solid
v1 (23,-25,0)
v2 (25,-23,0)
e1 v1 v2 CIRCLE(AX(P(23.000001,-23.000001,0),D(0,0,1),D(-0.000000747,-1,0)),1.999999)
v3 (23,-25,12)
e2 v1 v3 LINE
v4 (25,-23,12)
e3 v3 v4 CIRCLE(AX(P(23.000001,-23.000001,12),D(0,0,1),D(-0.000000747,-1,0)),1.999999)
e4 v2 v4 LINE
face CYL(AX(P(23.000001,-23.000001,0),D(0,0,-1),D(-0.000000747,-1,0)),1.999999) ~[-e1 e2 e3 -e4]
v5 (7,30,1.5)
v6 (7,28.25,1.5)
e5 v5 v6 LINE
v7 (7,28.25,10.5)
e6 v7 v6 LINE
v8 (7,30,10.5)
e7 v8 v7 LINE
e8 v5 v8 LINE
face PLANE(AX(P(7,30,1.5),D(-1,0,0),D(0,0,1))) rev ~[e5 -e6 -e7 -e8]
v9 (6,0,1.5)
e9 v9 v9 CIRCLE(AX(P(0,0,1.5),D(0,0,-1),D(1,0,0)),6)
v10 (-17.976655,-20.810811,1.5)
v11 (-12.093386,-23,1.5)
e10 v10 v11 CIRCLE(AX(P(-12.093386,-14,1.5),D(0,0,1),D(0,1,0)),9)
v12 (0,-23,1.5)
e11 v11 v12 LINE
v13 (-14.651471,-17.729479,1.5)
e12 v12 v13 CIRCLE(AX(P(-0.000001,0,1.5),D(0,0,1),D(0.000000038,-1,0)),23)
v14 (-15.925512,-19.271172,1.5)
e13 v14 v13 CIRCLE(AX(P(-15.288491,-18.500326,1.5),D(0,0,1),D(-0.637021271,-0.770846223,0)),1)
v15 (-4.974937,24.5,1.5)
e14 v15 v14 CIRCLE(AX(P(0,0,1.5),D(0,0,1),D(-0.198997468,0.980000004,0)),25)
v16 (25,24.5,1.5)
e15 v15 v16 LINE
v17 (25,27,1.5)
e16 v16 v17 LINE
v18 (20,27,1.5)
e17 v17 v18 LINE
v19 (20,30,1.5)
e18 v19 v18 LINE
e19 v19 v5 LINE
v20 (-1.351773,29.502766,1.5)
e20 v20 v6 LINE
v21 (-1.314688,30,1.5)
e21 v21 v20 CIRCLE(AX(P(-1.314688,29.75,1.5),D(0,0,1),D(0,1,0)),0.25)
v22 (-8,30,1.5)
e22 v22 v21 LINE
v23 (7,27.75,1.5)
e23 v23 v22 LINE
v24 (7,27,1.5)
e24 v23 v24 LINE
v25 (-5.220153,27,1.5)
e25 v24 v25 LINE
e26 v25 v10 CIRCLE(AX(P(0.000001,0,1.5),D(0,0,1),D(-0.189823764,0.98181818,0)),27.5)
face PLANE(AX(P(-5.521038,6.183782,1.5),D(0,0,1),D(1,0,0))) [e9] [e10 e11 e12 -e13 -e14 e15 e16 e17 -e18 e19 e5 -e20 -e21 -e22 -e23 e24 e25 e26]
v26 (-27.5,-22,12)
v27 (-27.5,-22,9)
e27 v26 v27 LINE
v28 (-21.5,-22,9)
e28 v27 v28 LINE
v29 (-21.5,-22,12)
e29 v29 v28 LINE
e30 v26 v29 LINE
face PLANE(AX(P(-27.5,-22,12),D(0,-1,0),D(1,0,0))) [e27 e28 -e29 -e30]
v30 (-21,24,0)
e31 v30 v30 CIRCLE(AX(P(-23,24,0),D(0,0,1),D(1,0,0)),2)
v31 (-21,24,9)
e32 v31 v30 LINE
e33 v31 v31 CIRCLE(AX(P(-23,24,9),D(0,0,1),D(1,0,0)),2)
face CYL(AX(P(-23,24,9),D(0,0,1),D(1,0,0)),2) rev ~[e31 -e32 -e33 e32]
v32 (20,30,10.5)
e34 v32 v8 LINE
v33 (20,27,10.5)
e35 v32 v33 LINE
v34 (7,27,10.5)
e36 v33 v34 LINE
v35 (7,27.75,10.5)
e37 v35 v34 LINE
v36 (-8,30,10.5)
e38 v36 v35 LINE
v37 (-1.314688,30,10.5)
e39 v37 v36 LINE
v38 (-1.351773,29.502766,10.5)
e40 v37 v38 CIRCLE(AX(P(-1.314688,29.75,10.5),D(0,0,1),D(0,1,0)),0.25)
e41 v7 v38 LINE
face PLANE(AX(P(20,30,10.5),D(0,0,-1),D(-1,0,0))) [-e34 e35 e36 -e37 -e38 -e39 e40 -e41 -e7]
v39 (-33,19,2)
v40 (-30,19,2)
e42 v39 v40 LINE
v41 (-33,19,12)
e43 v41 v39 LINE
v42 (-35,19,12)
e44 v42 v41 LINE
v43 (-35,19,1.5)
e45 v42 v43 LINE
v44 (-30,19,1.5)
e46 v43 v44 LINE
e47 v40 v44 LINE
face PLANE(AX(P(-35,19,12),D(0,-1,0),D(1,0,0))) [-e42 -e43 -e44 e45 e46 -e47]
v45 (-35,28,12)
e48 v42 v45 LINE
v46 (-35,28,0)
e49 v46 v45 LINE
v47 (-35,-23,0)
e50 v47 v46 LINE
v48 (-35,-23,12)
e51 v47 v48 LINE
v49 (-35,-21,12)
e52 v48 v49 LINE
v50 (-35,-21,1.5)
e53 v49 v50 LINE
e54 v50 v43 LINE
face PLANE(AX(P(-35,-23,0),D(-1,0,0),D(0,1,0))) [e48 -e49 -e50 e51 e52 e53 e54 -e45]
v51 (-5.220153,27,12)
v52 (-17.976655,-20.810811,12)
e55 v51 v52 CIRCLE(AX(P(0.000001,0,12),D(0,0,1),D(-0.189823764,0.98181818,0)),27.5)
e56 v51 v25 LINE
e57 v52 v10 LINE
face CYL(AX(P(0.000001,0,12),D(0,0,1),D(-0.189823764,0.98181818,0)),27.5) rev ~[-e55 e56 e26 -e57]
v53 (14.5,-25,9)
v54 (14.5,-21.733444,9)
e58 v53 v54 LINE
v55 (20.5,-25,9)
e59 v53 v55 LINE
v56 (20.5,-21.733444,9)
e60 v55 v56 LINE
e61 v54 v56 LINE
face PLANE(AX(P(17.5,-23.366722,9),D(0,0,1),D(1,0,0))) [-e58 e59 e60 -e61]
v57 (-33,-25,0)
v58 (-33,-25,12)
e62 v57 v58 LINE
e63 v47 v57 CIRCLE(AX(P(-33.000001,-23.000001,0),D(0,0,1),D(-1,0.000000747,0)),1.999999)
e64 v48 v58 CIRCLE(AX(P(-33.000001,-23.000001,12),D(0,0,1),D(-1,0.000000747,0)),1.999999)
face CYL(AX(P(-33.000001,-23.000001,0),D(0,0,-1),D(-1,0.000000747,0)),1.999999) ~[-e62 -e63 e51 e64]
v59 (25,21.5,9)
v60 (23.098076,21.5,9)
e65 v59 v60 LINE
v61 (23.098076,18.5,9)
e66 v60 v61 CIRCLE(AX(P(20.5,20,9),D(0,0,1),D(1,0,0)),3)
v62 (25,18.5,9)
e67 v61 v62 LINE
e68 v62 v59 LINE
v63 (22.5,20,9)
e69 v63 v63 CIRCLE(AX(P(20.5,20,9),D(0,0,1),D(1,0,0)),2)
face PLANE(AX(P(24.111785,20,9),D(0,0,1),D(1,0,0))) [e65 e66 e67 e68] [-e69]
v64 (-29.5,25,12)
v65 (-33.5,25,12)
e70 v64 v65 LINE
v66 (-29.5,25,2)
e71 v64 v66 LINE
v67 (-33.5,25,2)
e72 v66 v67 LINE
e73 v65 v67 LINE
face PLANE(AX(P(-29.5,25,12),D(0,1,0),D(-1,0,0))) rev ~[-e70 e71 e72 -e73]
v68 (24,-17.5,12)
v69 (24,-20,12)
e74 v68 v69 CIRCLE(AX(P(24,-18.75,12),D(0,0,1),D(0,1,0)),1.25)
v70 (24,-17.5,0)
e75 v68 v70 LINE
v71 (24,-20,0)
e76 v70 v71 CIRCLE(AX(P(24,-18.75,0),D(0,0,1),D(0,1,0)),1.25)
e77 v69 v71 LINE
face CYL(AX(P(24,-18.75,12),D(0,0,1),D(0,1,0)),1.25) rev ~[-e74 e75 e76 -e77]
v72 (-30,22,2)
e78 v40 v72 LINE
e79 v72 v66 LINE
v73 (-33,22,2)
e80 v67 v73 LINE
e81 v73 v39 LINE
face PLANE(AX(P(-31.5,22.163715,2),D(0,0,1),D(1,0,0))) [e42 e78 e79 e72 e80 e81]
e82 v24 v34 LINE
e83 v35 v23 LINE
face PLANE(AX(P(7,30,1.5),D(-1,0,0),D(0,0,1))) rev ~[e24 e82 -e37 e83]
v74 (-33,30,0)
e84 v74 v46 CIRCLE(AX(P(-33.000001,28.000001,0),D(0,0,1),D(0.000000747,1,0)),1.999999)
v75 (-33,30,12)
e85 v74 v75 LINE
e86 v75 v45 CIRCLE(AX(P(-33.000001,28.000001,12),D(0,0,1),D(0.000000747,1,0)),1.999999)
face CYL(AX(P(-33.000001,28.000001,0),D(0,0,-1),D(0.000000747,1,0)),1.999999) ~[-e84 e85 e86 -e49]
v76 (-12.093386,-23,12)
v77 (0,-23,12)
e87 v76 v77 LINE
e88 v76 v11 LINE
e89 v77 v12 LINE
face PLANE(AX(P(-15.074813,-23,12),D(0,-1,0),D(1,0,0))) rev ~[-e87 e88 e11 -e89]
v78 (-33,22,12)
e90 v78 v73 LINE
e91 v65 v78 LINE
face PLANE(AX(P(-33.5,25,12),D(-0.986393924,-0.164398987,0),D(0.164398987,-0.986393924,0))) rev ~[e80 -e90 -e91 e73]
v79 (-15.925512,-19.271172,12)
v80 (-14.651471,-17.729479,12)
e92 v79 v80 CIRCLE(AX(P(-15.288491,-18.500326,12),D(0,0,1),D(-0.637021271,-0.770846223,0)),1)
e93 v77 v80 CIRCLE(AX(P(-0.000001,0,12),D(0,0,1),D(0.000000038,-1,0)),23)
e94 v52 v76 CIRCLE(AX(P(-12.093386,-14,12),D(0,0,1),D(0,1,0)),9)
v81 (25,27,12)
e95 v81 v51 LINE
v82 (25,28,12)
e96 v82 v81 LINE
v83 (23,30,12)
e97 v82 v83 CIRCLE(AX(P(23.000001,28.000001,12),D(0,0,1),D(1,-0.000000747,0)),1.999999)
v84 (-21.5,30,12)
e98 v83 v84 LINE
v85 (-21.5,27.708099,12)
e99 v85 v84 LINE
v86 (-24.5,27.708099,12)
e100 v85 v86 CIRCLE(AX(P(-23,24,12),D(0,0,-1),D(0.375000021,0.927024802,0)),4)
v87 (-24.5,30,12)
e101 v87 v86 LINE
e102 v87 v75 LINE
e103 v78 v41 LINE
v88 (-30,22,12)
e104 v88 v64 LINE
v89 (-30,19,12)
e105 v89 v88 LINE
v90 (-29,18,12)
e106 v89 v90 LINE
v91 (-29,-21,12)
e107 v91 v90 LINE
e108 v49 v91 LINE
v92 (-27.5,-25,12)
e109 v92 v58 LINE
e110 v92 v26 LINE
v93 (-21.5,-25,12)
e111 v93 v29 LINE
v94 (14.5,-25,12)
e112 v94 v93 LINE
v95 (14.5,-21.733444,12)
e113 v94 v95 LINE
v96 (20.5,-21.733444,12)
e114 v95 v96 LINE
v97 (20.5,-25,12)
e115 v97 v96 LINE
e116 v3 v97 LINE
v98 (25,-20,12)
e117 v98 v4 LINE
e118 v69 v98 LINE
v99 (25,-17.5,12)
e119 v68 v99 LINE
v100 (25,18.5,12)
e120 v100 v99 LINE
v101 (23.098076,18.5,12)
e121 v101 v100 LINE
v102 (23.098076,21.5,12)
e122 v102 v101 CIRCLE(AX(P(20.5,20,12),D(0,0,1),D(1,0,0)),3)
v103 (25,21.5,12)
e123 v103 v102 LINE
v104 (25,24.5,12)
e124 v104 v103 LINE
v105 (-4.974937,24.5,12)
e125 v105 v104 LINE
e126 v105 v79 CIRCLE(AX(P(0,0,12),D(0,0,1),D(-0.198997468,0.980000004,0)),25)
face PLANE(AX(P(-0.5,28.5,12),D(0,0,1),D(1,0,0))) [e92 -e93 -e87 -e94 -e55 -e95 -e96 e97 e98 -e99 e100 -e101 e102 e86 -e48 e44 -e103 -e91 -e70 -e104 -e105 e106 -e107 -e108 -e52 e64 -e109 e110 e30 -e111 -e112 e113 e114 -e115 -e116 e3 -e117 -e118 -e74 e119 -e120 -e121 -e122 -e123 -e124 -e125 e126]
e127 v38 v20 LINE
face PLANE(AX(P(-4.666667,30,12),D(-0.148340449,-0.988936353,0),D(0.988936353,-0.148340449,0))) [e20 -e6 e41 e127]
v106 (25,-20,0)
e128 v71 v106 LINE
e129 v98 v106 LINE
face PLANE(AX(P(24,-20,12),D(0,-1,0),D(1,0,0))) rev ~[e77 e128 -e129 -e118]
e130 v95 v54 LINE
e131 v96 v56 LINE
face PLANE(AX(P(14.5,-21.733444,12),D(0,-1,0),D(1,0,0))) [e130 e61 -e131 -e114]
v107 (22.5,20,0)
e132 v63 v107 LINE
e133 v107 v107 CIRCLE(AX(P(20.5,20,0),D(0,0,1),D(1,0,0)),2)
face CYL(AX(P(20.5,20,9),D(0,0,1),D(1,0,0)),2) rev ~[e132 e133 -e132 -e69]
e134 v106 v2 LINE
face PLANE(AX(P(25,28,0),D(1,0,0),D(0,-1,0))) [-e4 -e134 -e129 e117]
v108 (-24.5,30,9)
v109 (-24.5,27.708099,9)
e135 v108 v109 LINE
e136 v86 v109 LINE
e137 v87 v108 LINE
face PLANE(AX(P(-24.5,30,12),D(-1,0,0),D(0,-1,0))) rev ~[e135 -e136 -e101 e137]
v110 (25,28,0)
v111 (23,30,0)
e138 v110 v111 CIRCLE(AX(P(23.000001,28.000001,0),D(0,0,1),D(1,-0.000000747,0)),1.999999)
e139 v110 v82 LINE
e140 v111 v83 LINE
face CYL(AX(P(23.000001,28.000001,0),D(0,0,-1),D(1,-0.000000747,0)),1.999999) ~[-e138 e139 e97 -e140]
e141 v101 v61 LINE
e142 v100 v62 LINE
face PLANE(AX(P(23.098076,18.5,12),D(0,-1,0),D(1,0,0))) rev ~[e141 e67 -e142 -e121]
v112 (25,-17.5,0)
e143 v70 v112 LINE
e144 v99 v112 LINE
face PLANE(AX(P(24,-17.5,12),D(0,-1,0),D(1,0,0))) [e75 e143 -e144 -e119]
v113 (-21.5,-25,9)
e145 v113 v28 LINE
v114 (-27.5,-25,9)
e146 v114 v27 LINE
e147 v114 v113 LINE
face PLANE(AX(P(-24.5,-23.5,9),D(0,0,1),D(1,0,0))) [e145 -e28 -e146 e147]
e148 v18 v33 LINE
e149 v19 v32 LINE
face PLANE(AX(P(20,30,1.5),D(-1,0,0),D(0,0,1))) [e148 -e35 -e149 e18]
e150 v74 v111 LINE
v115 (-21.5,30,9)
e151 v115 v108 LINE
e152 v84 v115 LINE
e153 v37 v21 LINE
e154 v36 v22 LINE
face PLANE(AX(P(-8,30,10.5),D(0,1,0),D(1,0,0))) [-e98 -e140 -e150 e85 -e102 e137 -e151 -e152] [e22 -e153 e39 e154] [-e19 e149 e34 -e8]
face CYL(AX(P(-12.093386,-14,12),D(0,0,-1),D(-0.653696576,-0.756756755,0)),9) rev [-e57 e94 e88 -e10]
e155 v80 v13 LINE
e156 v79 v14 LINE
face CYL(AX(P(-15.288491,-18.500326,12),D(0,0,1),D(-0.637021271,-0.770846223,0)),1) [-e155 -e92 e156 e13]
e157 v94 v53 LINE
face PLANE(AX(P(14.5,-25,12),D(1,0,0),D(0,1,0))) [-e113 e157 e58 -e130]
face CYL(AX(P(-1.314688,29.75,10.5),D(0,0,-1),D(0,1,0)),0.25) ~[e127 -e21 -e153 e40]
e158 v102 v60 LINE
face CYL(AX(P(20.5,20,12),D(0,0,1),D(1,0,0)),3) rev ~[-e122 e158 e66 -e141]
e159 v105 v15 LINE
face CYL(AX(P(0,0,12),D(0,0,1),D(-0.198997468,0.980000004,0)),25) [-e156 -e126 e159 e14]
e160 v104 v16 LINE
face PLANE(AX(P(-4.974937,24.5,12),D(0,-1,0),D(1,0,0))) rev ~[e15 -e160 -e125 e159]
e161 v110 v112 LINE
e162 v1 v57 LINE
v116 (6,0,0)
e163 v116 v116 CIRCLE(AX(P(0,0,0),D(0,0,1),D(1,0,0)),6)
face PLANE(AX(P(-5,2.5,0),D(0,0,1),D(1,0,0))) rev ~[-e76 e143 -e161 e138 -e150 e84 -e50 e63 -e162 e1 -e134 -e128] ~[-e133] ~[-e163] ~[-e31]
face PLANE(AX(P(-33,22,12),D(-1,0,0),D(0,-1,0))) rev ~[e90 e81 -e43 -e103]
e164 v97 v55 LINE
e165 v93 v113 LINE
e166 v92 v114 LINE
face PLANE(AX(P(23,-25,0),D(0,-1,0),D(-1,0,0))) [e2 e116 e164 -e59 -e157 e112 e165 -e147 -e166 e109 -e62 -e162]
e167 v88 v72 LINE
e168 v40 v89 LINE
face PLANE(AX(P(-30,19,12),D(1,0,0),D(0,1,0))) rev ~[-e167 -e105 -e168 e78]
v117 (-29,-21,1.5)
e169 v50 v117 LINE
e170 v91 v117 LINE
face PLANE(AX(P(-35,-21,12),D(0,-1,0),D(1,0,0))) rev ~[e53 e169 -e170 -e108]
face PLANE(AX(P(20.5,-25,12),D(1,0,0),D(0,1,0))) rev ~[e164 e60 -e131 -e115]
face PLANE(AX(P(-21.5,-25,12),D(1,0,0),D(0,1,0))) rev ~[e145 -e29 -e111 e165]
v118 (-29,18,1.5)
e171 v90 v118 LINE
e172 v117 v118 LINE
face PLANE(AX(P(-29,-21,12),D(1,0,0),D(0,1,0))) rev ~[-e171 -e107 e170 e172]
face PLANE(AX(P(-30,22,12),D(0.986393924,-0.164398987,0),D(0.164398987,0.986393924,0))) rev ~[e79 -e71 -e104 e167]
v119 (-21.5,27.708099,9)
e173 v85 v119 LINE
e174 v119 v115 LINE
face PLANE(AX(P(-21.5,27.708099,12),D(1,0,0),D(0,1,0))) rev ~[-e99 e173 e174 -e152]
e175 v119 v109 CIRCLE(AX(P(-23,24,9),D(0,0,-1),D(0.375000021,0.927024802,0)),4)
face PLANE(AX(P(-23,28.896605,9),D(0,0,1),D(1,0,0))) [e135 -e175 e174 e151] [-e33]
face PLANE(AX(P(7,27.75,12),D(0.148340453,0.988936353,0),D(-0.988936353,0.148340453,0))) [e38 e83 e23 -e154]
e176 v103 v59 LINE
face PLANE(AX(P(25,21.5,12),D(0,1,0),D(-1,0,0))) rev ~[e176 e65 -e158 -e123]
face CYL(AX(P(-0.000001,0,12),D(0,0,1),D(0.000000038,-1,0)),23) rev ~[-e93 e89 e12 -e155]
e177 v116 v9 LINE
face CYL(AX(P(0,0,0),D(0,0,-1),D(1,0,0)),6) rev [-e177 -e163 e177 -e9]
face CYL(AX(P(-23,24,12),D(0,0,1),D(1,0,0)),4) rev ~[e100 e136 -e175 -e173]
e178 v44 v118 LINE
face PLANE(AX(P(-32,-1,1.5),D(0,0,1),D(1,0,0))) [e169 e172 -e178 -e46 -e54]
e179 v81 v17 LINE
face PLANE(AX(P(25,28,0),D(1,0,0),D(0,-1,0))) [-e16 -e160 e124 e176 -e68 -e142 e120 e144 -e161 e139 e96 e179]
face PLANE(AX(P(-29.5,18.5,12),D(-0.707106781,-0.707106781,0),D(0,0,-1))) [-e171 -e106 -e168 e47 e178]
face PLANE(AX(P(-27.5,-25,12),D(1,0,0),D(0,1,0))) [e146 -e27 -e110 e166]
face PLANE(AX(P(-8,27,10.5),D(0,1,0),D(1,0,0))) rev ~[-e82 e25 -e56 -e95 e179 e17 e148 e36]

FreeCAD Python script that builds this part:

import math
import FreeCAD as App
import Part
import Sketcher
Q = App.Units.Quantity


def edges_at(feature, points):
    """Names of the edges that pass closest to the given points."""
    edges = feature.Shape.Edges
    near = lambda p: min(range(len(edges)), key=lambda i: edges[i].distToShape(Part.Vertex(*p))[0])
    return sorted({f"Edge{near(p) + 1}" for p in points})


def add_polygon(sketch, points):
    """Adds a closed chain of lines whose ends are joined by coincident constraints."""
    first, n = sketch.GeometryCount, len(points)
    for a, b in zip(points, points[1:] + points[:1]):
        sketch.addGeometry(Part.LineSegment(App.Vector(*a, 0), App.Vector(*b, 0)), False)
    for i in range(n):
        sketch.addConstraint(Sketcher.Constraint("Coincident", first + i, 2, first + (i + 1) % n, 1))

doc = App.newDocument("Part")
params = doc.addObject("Spreadsheet::Sheet", "Params")
for row, (alias, value) in enumerate([
    ("sketch1_diameter", "12 mm"),
    ("sketch1_radius", "1.999999 mm"),
    ("sketch1_width", "56 mm"),
    ("sketch1_height", "51 mm"),
    ("pad1_length", "12 mm"),
    ("sketch2_radius", "23 mm"),
    ("sketch2_radius2", "1 mm"),
    ("sketch2_radius3", "27.5 mm"),
    ("sketch2_height", "2.5 mm"),
    ("pocket1_length", "10.5 mm"),
    ("fillet_radius", "9 mm"),
    ("sketch3_width", "1 mm"),
    ("sketch3_radius", "1.25 mm"),
    ("sketch4_width", "6 mm"),
    ("sketch4_height", "40 mm"),
    ("pocket3_length", "10.5 mm"),
    ("sketch5_width", "3 mm"),
    ("sketch5_width2", "4 mm"),
    ("pocket4_length", "10 mm"),
    ("sketch6_diameter", "8 mm"),
    ("sketch6_diameter2", "6 mm"),
    ("sketch6_width", "6 mm"),
    ("sketch6_height", "3 mm"),
    ("pocket5_length", "3 mm"),
    ("sketch7_width", "13 mm"),
    ("sketch7_height", "9 mm"),
    ("pocket6_length", "5 mm"),
    ("sketch8_height", "0.5 mm"),
    ("pocket7_length", "10.5 mm"),
    ("sketch9_width", "15 mm"),
    ("sketch9_height", "3 mm"),
    ("pocket8_length", "1.5 mm"),
    ("sketch10_width", "15 mm"),
    ("sketch10_height", "3 mm"),
    ("pad2_length", "1.5 mm"),
    ("sketch11_radius", "2.999999 mm"),
    ("sketch11_width", "3 mm"),
    ("pocket9_length", "3 mm"),
    ("fillet2_radius", "0.25 mm"),
    ("sketch12_diameter", "4 mm"),
    ("chamfer_size", "1 mm"),
], start=1):
    params.set(f"A{row}", alias)
    params.set(f"B{row}", "=" + value)
    params.setAlias(f"B{row}", alias)

body = doc.addObject("PartDesign::Body", "Body")

# Sketch on XY plane
sketch1 = body.newObject("Sketcher::SketchObject", "Sketch")
sketch1.AttachmentSupport = (doc.getObject("XY_Plane"), [""])
sketch1.MapMode = "FlatFace"
sketch1.addGeometry([
    Part.ArcOfCircle(Part.Circle(App.Vector(-33, 28, 0), App.Vector(0, 0, 1), 2), math.radians(90), math.radians(180)),  # 0
    Part.LineSegment(App.Vector(-35, 28, 0), App.Vector(-35, -23, 0)),  # 1
    Part.ArcOfCircle(Part.Circle(App.Vector(-33, -23, 0), App.Vector(0, 0, 1), 2), math.radians(180), math.radians(270)),  # 2
    Part.LineSegment(App.Vector(-33, -25, 0), App.Vector(23, -25, 0)),  # 3
    Part.ArcOfCircle(Part.Circle(App.Vector(23, -23, 0), App.Vector(0, 0, 1), 2), math.radians(-90), math.radians(0)),  # 4
    Part.LineSegment(App.Vector(25, -23, 0), App.Vector(25, 28, 0)),  # 5
    Part.ArcOfCircle(Part.Circle(App.Vector(23, 28, 0), App.Vector(0, 0, 1), 2), math.radians(0), math.radians(90)),  # 6
    Part.LineSegment(App.Vector(23, 30, 0), App.Vector(-33, 30, 0)),  # 7
    Part.Circle(App.Vector(0, 0, 0), App.Vector(0, 0, 1), 6),  # 8
], False)
sketch1.addConstraint([
    Sketcher.Constraint("Tangent", 0, 2, 1, 1),
    Sketcher.Constraint("Tangent", 1, 2, 2, 1),
    Sketcher.Constraint("Tangent", 2, 2, 3, 1),
    Sketcher.Constraint("Tangent", 3, 2, 4, 1),
    Sketcher.Constraint("Tangent", 4, 2, 5, 1),
    Sketcher.Constraint("Tangent", 5, 2, 6, 1),
    Sketcher.Constraint("Tangent", 6, 2, 7, 1),
    Sketcher.Constraint("Tangent", 7, 2, 0, 1),
    Sketcher.Constraint("Vertical", 1),
    Sketcher.Constraint("Horizontal", 3),
    Sketcher.Constraint("Vertical", 5),
    Sketcher.Constraint("Horizontal", 7),
    Sketcher.Constraint("Coincident", 8, 3, -1, 1),
    Sketcher.Constraint("Equal", 0, 2),
    Sketcher.Constraint("Equal", 2, 4),
    Sketcher.Constraint("Equal", 4, 6),
    Sketcher.Constraint("Diameter", 8, Q("12 mm")),
    Sketcher.Constraint("Radius", 0, Q("1.999999 mm")),
    Sketcher.Constraint("DistanceX", 3, 1, 3, 2, Q("56 mm")),
    Sketcher.Constraint("DistanceY", 1, 2, 1, 1, Q("51 mm")),
    Sketcher.Constraint("DistanceX", 0, 3, -1, 1, Q("33.000001 mm")),
    Sketcher.Constraint("DistanceY", -1, 1, 0, 3, Q("28.000001 mm")),
])
sketch1.setExpression("Constraints[16]", "Params.sketch1_diameter")
sketch1.setExpression("Constraints[17]", "Params.sketch1_radius")
sketch1.setExpression("Constraints[18]", "Params.sketch1_width")
sketch1.setExpression("Constraints[19]", "Params.sketch1_height")
pad1 = body.newObject("PartDesign::Pad", "Pad")
pad1.Profile = sketch1
pad1.setExpression("Length", "Params.pad1_length")

# Sketch on XY plane
sketch2 = body.newObject("Sketcher::SketchObject", "Sketch001")
sketch2.AttachmentSupport = (doc.getObject("XY_Plane"), [""])
sketch2.MapMode = "FlatFace"
sketch2.AttachmentOffset = App.Placement(App.Vector(0, 0, 12), App.Rotation())
sketch2.addGeometry([
    Part.ArcOfCircle(Part.Circle(App.Vector(0, 0, 0), App.Vector(0, 0, 1), 23), math.radians(-90), math.radians(230)),  # 0
    Part.ArcOfCircle(Part.Circle(App.Vector(-15.3, -18.5, 0), App.Vector(0, 0, 1), 1), math.radians(-130), math.radians(50)),  # 1
    Part.ArcOfCircle(Part.Circle(App.Vector(0, 0, 0), App.Vector(0, 0, 1), 25), math.radians(101), math.radians(230)),  # 2
    Part.LineSegment(App.Vector(-5, 24.5, 0), App.Vector(25, 24.5, 0)),  # 3
    Part.LineSegment(App.Vector(25, 24.5, 0), App.Vector(25, 27, 0)),  # 4
    Part.LineSegment(App.Vector(25, 27, 0), App.Vector(-5.2, 27, 0)),  # 5
    Part.ArcOfCircle(Part.Circle(App.Vector(0, 0, 0), App.Vector(0, 0, 1), 27.5), math.radians(101), math.radians(237)),  # 6
    Part.LineSegment(App.Vector(-15.1, -23, 0), App.Vector(0, -23, 0)),  # 7
], False)
sketch2.addConstraint([
    Sketcher.Constraint("Tangent", 0, 2, 1, 2),
    Sketcher.Constraint("Tangent", 1, 1, 2, 2),
    Sketcher.Constraint("Coincident", 2, 1, 3, 1),
    Sketcher.Constraint("Coincident", 3, 2, 4, 1),
    Sketcher.Constraint("Coincident", 4, 2, 5, 1),
    Sketcher.Constraint("Coincident", 5, 2, 6, 1),
    Sketcher.Constraint("Coincident", 6, 2, 7, 1),
    Sketcher.Constraint("Tangent", 7, 2, 0, 1),
    Sketcher.Constraint("Horizontal", 3),
    Sketcher.Constraint("Vertical", 4),
    Sketcher.Constraint("Horizontal", 5),
    Sketcher.Constraint("Horizontal", 7),
    Sketcher.Constraint("Coincident", 0, 3, -1, 1),
    Sketcher.Constraint("Coincident", 2, 3, -1, 1),
    Sketcher.Constraint("Coincident", 6, 3, -1, 1),
    Sketcher.Constraint("Radius", 0, Q("23 mm")),
    Sketcher.Constraint("Radius", 1, Q("1 mm")),
    Sketcher.Constraint("Radius", 6, Q("27.5 mm")),
    Sketcher.Constraint("DistanceY", 4, 1, 4, 2, Q("2.5 mm")),
    Sketcher.Constraint("DistanceX", -1, 1, 3, 2, Q("25 mm")),
    Sketcher.Constraint("DistanceY", -1, 1, 4, 2, Q("27 mm")),
    Sketcher.Constraint("DistanceX", 1, 1, 6, 2, Q("0.850699 mm")),
])
sketch2.setExpression("Constraints[15]", "Params.sketch2_radius")
sketch2.setExpression("Constraints[16]", "Params.sketch2_radius2")
sketch2.setExpression("Constraints[17]", "Params.sketch2_radius3")
sketch2.setExpression("Constraints[18]", "Params.sketch2_height")
pocket1 = body.newObject("PartDesign::Pocket", "Pocket")
pocket1.Profile = sketch2
pocket1.setExpression("Length", "Params.pocket1_length")
doc.recompute()

fillet = body.newObject("PartDesign::Fillet", "Fillet")
fillet.Base = (pocket1, edges_at(pocket1, [(-15.075, -23, 6.75)]))
fillet.setExpression("Radius", "Params.fillet_radius")

# Sketch on XY plane
sketch3 = body.newObject("Sketcher::SketchObject", "Sketch002")
sketch3.AttachmentSupport = (doc.getObject("XY_Plane"), [""])
sketch3.MapMode = "FlatFace"
sketch3.AttachmentOffset = App.Placement(App.Vector(0, 0, 12), App.Rotation())
sketch3.addGeometry([
    Part.ArcOfCircle(Part.Circle(App.Vector(24, -18.8, 0), App.Vector(0, 0, 1), 1.2), math.radians(90), math.radians(270)),
    Part.LineSegment(App.Vector(24, -20, 0), App.Vector(25, -20, 0)),
    Part.LineSegment(App.Vector(25, -20, 0), App.Vector(25, -17.5, 0)),
    Part.LineSegment(App.Vector(25, -17.5, 0), App.Vector(24, -17.5, 0)),
], False)
sketch3.addConstraint([
    Sketcher.Constraint("Tangent", 0, 2, 1, 1),
    Sketcher.Constraint("Coincident", 1, 2, 2, 1),
    Sketcher.Constraint("Coincident", 2, 2, 3, 1),
    Sketcher.Constraint("Tangent", 3, 2, 0, 1),
    Sketcher.Constraint("Horizontal", 1),
    Sketcher.Constraint("Vertical", 2),
    Sketcher.Constraint("Horizontal", 3),
    Sketcher.Constraint("DistanceX", 1, 1, 1, 2, Q("1 mm")),
    Sketcher.Constraint("Radius", 0, Q("1.25 mm")),
    Sketcher.Constraint("DistanceX", -1, 1, 0, 3, Q("24 mm")),
    Sketcher.Constraint("DistanceY", 0, 2, -1, 1, Q("20 mm")),
])
sketch3.setExpression("Constraints[7]", "Params.sketch3_width")
sketch3.setExpression("Constraints[8]", "Params.sketch3_radius")
pocket2 = body.newObject("PartDesign::Pocket", "Pocket001")
pocket2.Profile = sketch3
pocket2.Type = "ThroughAll"

# Sketch on XY plane
sketch4 = body.newObject("Sketcher::SketchObject", "Sketch003")
sketch4.AttachmentSupport = (doc.getObject("XY_Plane"), [""])
sketch4.MapMode = "FlatFace"
sketch4.AttachmentOffset = App.Placement(App.Vector(0, 0, 12), App.Rotation())
add_polygon(sketch4, [(-35, 19), (-35, -21), (-29, -21), (-29, 19)])  # lines 0-3
sketch4.addConstraint([
    Sketcher.Constraint("Vertical", 0),
    Sketcher.Constraint("Horizontal", 1),
    Sketcher.Constraint("Vertical", 2),
    Sketcher.Constraint("Horizontal", 3),
    Sketcher.Constraint("DistanceX", 1, 1, 1, 2, Q("6 mm")),
    Sketcher.Constraint("DistanceY", 0, 2, 0, 1, Q("40 mm")),
    Sketcher.Constraint("DistanceX", 0, 2, -1, 1, Q("35 mm")),
    Sketcher.Constraint("DistanceY", 0, 2, -1, 1, Q("21 mm")),
])
sketch4.setExpression("Constraints[8]", "Params.sketch4_width")
sketch4.setExpression("Constraints[9]", "Params.sketch4_height")
pocket3 = body.newObject("PartDesign::Pocket", "Pocket002")
pocket3.Profile = sketch4
pocket3.setExpression("Length", "Params.pocket3_length")

# Sketch on XY plane
sketch5 = body.newObject("Sketcher::SketchObject", "Sketch004")
sketch5.AttachmentSupport = (doc.getObject("XY_Plane"), [""])
sketch5.MapMode = "FlatFace"
sketch5.AttachmentOffset = App.Placement(App.Vector(0, 0, 12), App.Rotation())
add_polygon(sketch5, [(-33, 22), (-33, 19), (-30, 19), (-30, 22), (-29.5, 25), (-33.5, 25)])  # lines 0-5
sketch5.addConstraint([
    Sketcher.Constraint("Vertical", 0),
    Sketcher.Constraint("Horizontal", 1),
    Sketcher.Constraint("Vertical", 2),
    Sketcher.Constraint("Horizontal", 4),
    Sketcher.Constraint("Horizontal", 2, 2, 5, 2),
    Sketcher.Constraint("Equal", 1, 0),
    Sketcher.Constraint("Equal", 3, 5),
    Sketcher.Constraint("DistanceX", 1, 1, 1, 2, Q("3 mm")),
    Sketcher.Constraint("DistanceX", 4, 2, 4, 1, Q("4 mm")),
    Sketcher.Constraint("DistanceX", 0, 2, -1, 1, Q("33 mm")),
    Sketcher.Constraint("DistanceY", -1, 1, 0, 2, Q("19 mm")),
    Sketcher.Constraint("DistanceY", -1, 1, 3, 2, Q("25 mm")),
])
sketch5.setExpression("Constraints[13]", "Params.sketch5_width")
sketch5.setExpression("Constraints[14]", "Params.sketch5_width2")
pocket4 = body.newObject("PartDesign::Pocket", "Pocket003")
pocket4.Profile = sketch5
pocket4.setExpression("Length", "Params.pocket4_length")

# Sketch on XY plane
sketch6 = body.newObject("Sketcher::SketchObject", "Sketch005")
sketch6.AttachmentSupport = (doc.getObject("XY_Plane"), [""])
sketch6.MapMode = "FlatFace"
sketch6.AttachmentOffset = App.Placement(App.Vector(0, 0, 12), App.Rotation())
sketch6.addGeometry(Part.Circle(App.Vector(-23, 24, 0), App.Vector(0, 0, 1), 4), False)  # 0
sketch6.addGeometry(Part.Circle(App.Vector(20.5, 20, 0), App.Vector(0, 0, 1), 3), False)  # 1
add_polygon(sketch6, [(-27.5, -22), (-27.5, -25), (-21.5, -25), (-21.5, -22)])  # lines 2-5
add_polygon(sketch6, [(14.5, -21.7), (14.5, -25), (20.5, -25), (20.5, -21.7)])  # lines 6-9
sketch6.addConstraint([
    Sketcher.Constraint("Vertical", 2),
    Sketcher.Constraint("Horizontal", 3),
    Sketcher.Constraint("Vertical", 4),
    Sketcher.Constraint("Horizontal", 5),
    Sketcher.Constraint("Vertical", 6),
    Sketcher.Constraint("Horizontal", 7),
    Sketcher.Constraint("Vertical", 8),
    Sketcher.Constraint("Horizontal", 9),
    Sketcher.Constraint("Horizontal", 3, 2, 6, 2),
    Sketcher.Constraint("Vertical", 1, 3, 7, 2),
    Sketcher.Constraint("Equal", 5, 7),
    Sketcher.Constraint("Diameter", 0, Q("8 mm")),
    Sketcher.Constraint("Diameter", 1, Q("6 mm")),
    Sketcher.Constraint("DistanceX", 3, 1, 3, 2, Q("6 mm")),
    Sketcher.Constraint("DistanceY", 2, 2, 2, 1, Q("3 mm")),
    Sketcher.Constraint("DistanceX", 0, 3, -1, 1, Q("23 mm")),
    Sketcher.Constraint("DistanceY", -1, 1, 0, 3, Q("24 mm")),
    Sketcher.Constraint("DistanceY", -1, 1, 1, 3, Q("20 mm")),
    Sketcher.Constraint("DistanceY", 2, 2, -1, 1, Q("25 mm")),
    Sketcher.Constraint("DistanceX", 2, 2, 1, 3, Q("48 mm")),
    Sketcher.Constraint("DistanceX", -1, 1, 1, 3, Q("20.5 mm")),
    Sketcher.Constraint("DistanceY", 6, 2, 6, 1, Q("3.266556 mm")),
])
sketch6.setExpression("Constraints[19]", "Params.sketch6_diameter")
sketch6.setExpression("Constraints[20]", "Params.sketch6_diameter2")
sketch6.setExpression("Constraints[21]", "Params.sketch6_width")
sketch6.setExpression("Constraints[22]", "Params.sketch6_height")
pocket5 = body.newObject("PartDesign::Pocket", "Pocket004")
pocket5.Profile = sketch6
pocket5.setExpression("Length", "Params.pocket5_length")

# Sketch on XZ plane
sketch7 = body.newObject("Sketcher::SketchObject", "Sketch006")
sketch7.AttachmentSupport = (doc.getObject("XZ_Plane"), [""])
sketch7.MapMode = "FlatFace"
sketch7.AttachmentOffset = App.Placement(App.Vector(0, 0, -30), App.Rotation())
add_polygon(sketch7, [(20, 10), (20, 2), (7, 2), (7, 10)])  # lines 0-3
sketch7.addConstraint([
    Sketcher.Constraint("Vertical", 0),
    Sketcher.Constraint("Horizontal", 1),
    Sketcher.Constraint("Vertical", 2),
    Sketcher.Constraint("Horizontal", 3),
    Sketcher.Constraint("DistanceX", 1, 2, 1, 1, Q("13 mm")),
    Sketcher.Constraint("DistanceY", 0, 2, 0, 1, Q("9 mm")),
    Sketcher.Constraint("DistanceX", -1, 1, 0, 2, Q("20 mm")),
    Sketcher.Constraint("DistanceY", -1, 1, 0, 2, Q("1.5 mm")),
])
sketch7.setExpression("Constraints[8]", "Params.sketch7_width")
sketch7.setExpression("Constraints[9]", "Params.sketch7_height")
pocket6 = body.newObject("PartDesign::Pocket", "Pocket005")
pocket6.Profile = sketch7
pocket6.setExpression("Length", "Params.pocket6_length")
pocket6.Reversed = True

# Sketch on XY plane
sketch8 = body.newObject("Sketcher::SketchObject", "Sketch007")
sketch8.AttachmentSupport = (doc.getObject("XY_Plane"), [""])
sketch8.MapMode = "FlatFace"
sketch8.AttachmentOffset = App.Placement(App.Vector(0, 0, 12), App.Rotation())
add_polygon(sketch8, [(-8, 30), (7, 27.8), (7, 28.2), (-4.7, 30)])  # lines 0-3
sketch8.addConstraint([
    Sketcher.Constraint("Vertical", 1),
    Sketcher.Constraint("Horizontal", 3),
    Sketcher.Constraint("Parallel", 0, 2),
    Sketcher.Constraint("DistanceY", 1, 1, 1, 2, Q("0.5 mm")),
    Sketcher.Constraint("DistanceX", -1, 1, 0, 2, Q("7 mm")),
    Sketcher.Constraint("DistanceY", -1, 1, 2, 2, Q("30 mm")),
    Sketcher.Constraint("DistanceX", 3, 2, -1, 1, Q("8 mm")),
    Sketcher.Constraint("DistanceY", -1, 1, 0, 2, Q("27.75 mm")),
])
sketch8.setExpression("Constraints[7]", "Params.sketch8_height")
pocket7 = body.newObject("PartDesign::Pocket", "Pocket006")
pocket7.Profile = sketch8
pocket7.setExpression("Length", "Params.pocket7_length")

# Sketch on XY plane
sketch9 = body.newObject("Sketcher::SketchObject", "Sketch008")
sketch9.AttachmentSupport = (doc.getObject("XY_Plane"), [""])
sketch9.MapMode = "FlatFace"
sketch9.AttachmentOffset = App.Placement(App.Vector(0, 0, 12), App.Rotation())
add_polygon(sketch9, [(-8, 30), (-8, 27), (7, 27), (7, 30)])  # lines 0-3
sketch9.addConstraint([
    Sketcher.Constraint("Vertical", 0),
    Sketcher.Constraint("Horizontal", 1),
    Sketcher.Constraint("Vertical", 2),
    Sketcher.Constraint("Horizontal", 3),
    Sketcher.Constraint("DistanceX", 1, 1, 1, 2, Q("15 mm")),
    Sketcher.Constraint("DistanceY", 0, 2, 0, 1, Q("3 mm")),
    Sketcher.Constraint("DistanceX", 0, 2, -1, 1, Q("8 mm")),
    Sketcher.Constraint("DistanceY", -1, 1, 0, 2, Q("27 mm")),
])
sketch9.setExpression("Constraints[8]", "Params.sketch9_width")
sketch9.setExpression("Constraints[9]", "Params.sketch9_height")
pocket8 = body.newObject("PartDesign::Pocket", "Pocket007")
pocket8.Profile = sketch9
pocket8.setExpression("Length", "Params.pocket8_length")

# Sketch on XY plane
sketch10 = body.newObject("Sketcher::SketchObject", "Sketch009")
sketch10.AttachmentSupport = (doc.getObject("XY_Plane"), [""])
sketch10.MapMode = "FlatFace"
sketch10.AttachmentOffset = App.Placement(App.Vector(0, 0, 10.5), App.Rotation())
add_polygon(sketch10, [(-8, 30), (-8, 27), (7, 27), (7, 30)])  # lines 0-3
sketch10.addConstraint([
    Sketcher.Constraint("Vertical", 0),
    Sketcher.Constraint("Horizontal", 1),
    Sketcher.Constraint("Vertical", 2),
    Sketcher.Constraint("Horizontal", 3),
    Sketcher.Constraint("DistanceX", 1, 1, 1, 2, Q("15 mm")),
    Sketcher.Constraint("DistanceY", 0, 2, 0, 1, Q("3 mm")),
    Sketcher.Constraint("DistanceX", 0, 2, -1, 1, Q("8 mm")),
    Sketcher.Constraint("DistanceY", -1, 1, 0, 2, Q("27 mm")),
])
sketch10.setExpression("Constraints[8]", "Params.sketch10_width")
sketch10.setExpression("Constraints[9]", "Params.sketch10_height")
pad2 = body.newObject("PartDesign::Pad", "Pad001")
pad2.Profile = sketch10
pad2.setExpression("Length", "Params.pad2_length")

# Sketch on XY plane
sketch11 = body.newObject("Sketcher::SketchObject", "Sketch010")
sketch11.AttachmentSupport = (doc.getObject("XY_Plane"), [""])
sketch11.MapMode = "FlatFace"
sketch11.AttachmentOffset = App.Placement(App.Vector(0, 0, 12), App.Rotation())
sketch11.addGeometry([
    Part.LineSegment(App.Vector(-24.5, 30, 0), App.Vector(-24.5, 27.7, 0)),  # 0
    Part.ArcOfCircle(Part.Circle(App.Vector(-23, 24, 0), App.Vector(0, 0, 1), 4), math.radians(68), math.radians(112)),  # 1
    Part.LineSegment(App.Vector(-21.5, 27.7, 0), App.Vector(-21.5, 30, 0)),  # 2
    Part.LineSegment(App.Vector(-21.5, 30, 0), App.Vector(-24.5, 30, 0)),  # 3
    Part.LineSegment(App.Vector(23.1, 18.5, 0), App.Vector(25, 18.5, 0)),  # 4
    Part.LineSegment(App.Vector(25, 18.5, 0), App.Vector(25, 21.5, 0)),  # 5
    Part.LineSegment(App.Vector(25, 21.5, 0), App.Vector(23.1, 21.5, 0)),  # 6
    Part.ArcOfCircle(Part.Circle(App.Vector(20.5, 20, 0), App.Vector(0, 0, 1), 3), math.radians(-30), math.radians(30)),  # 7
], False)
sketch11.addConstraint([
    Sketcher.Constraint("Coincident", 0, 2, 1, 2),
    Sketcher.Constraint("Coincident", 1, 1, 2, 1),
    Sketcher.Constraint("Coincident", 2, 2, 3, 1),
    Sketcher.Constraint("Coincident", 3, 2, 0, 1),
    Sketcher.Constraint("Coincident", 4, 2, 5, 1),
    Sketcher.Constraint("Coincident", 5, 2, 6, 1),
    Sketcher.Constraint("Coincident", 6, 2, 7, 2),
    Sketcher.Constraint("Coincident", 7, 1, 4, 1),
    Sketcher.Constraint("Vertical", 0),
    Sketcher.Constraint("Vertical", 2),
    Sketcher.Constraint("Horizontal", 3),
    Sketcher.Constraint("Horizontal", 4),
    Sketcher.Constraint("Vertical", 5),
    Sketcher.Constraint("Horizontal", 6),
    Sketcher.Constraint("Horizontal", 0, 2, 1, 1),
    Sketcher.Constraint("Vertical", 6, 2, 7, 1),
    Sketcher.Constraint("Equal", 3, 5),
    Sketcher.Constraint("Radius", 7, Q("2.999999 mm")),
    Sketcher.Constraint("DistanceX", 3, 2, 3, 1, Q("3 mm")),
    Sketcher.Constraint("DistanceX", 1, 3, -1, 1, Q("23 mm")),
    Sketcher.Constraint("DistanceY", -1, 1, 7, 3, Q("20 mm")),
    Sketcher.Constraint("DistanceY", -1, 1, 2, 2, Q("30 mm")),
    Sketcher.Constraint("DistanceX", -1, 1, 4, 2, Q("25 mm")),
    Sketcher.Constraint("DistanceX", 0, 2, 7, 3, Q("45.000001 mm")),
    Sketcher.Constraint("DistanceY", 0, 2, 0, 1, Q("2.291901 mm")),
    Sketcher.Constraint("Radius", 1, Q("3.999997 mm")),
])
sketch11.setExpression("Constraints[17]", "Params.sketch11_radius")
sketch11.setExpression("Constraints[18]", "Params.sketch11_width")
pocket9 = body.newObject("PartDesign::Pocket", "Pocket008")
pocket9.Profile = sketch11
pocket9.setExpression("Length", "Params.pocket9_length")
doc.recompute()

fillet2 = body.newObject("PartDesign::Fillet", "Fillet001")
fillet2.Base = (pocket9, edges_at(pocket9, [(-4.667, 30, 6)]))
fillet2.setExpression("Radius", "Params.fillet2_radius")

# Sketch on XY plane
sketch12 = body.newObject("Sketcher::SketchObject", "Sketch011")
sketch12.AttachmentSupport = (doc.getObject("XY_Plane"), [""])
sketch12.MapMode = "FlatFace"
sketch12.AttachmentOffset = App.Placement(App.Vector(0, 0, 9), App.Rotation())
sketch12.addGeometry([
    Part.Circle(App.Vector(-23, 24, 0), App.Vector(0, 0, 1), 2),
    Part.Circle(App.Vector(20.5, 20, 0), App.Vector(0, 0, 1), 2),
], False)
sketch12.addConstraint([
    Sketcher.Constraint("Equal", 0, 1),
    Sketcher.Constraint("Diameter", 0, Q("4 mm")),
    Sketcher.Constraint("DistanceX", 0, 3, -1, 1, Q("23 mm")),
    Sketcher.Constraint("DistanceY", -1, 1, 0, 3, Q("24 mm")),
    Sketcher.Constraint("DistanceY", -1, 1, 1, 3, Q("20 mm")),
    Sketcher.Constraint("DistanceX", -1, 1, 1, 3, Q("20.5 mm")),
])
sketch12.setExpression("Constraints[1]", "Params.sketch12_diameter")
pocket10 = body.newObject("PartDesign::Pocket", "Pocket009")
pocket10.Profile = sketch12
pocket10.Type = "ThroughAll"
doc.recompute()

chamfer = body.newObject("PartDesign::Chamfer", "Chamfer")
chamfer.Base = (pocket10, edges_at(pocket10, [(-29, 19, 6.75)]))
chamfer.setExpression("Size", "Params.chamfer_size")

doc.recompute()
